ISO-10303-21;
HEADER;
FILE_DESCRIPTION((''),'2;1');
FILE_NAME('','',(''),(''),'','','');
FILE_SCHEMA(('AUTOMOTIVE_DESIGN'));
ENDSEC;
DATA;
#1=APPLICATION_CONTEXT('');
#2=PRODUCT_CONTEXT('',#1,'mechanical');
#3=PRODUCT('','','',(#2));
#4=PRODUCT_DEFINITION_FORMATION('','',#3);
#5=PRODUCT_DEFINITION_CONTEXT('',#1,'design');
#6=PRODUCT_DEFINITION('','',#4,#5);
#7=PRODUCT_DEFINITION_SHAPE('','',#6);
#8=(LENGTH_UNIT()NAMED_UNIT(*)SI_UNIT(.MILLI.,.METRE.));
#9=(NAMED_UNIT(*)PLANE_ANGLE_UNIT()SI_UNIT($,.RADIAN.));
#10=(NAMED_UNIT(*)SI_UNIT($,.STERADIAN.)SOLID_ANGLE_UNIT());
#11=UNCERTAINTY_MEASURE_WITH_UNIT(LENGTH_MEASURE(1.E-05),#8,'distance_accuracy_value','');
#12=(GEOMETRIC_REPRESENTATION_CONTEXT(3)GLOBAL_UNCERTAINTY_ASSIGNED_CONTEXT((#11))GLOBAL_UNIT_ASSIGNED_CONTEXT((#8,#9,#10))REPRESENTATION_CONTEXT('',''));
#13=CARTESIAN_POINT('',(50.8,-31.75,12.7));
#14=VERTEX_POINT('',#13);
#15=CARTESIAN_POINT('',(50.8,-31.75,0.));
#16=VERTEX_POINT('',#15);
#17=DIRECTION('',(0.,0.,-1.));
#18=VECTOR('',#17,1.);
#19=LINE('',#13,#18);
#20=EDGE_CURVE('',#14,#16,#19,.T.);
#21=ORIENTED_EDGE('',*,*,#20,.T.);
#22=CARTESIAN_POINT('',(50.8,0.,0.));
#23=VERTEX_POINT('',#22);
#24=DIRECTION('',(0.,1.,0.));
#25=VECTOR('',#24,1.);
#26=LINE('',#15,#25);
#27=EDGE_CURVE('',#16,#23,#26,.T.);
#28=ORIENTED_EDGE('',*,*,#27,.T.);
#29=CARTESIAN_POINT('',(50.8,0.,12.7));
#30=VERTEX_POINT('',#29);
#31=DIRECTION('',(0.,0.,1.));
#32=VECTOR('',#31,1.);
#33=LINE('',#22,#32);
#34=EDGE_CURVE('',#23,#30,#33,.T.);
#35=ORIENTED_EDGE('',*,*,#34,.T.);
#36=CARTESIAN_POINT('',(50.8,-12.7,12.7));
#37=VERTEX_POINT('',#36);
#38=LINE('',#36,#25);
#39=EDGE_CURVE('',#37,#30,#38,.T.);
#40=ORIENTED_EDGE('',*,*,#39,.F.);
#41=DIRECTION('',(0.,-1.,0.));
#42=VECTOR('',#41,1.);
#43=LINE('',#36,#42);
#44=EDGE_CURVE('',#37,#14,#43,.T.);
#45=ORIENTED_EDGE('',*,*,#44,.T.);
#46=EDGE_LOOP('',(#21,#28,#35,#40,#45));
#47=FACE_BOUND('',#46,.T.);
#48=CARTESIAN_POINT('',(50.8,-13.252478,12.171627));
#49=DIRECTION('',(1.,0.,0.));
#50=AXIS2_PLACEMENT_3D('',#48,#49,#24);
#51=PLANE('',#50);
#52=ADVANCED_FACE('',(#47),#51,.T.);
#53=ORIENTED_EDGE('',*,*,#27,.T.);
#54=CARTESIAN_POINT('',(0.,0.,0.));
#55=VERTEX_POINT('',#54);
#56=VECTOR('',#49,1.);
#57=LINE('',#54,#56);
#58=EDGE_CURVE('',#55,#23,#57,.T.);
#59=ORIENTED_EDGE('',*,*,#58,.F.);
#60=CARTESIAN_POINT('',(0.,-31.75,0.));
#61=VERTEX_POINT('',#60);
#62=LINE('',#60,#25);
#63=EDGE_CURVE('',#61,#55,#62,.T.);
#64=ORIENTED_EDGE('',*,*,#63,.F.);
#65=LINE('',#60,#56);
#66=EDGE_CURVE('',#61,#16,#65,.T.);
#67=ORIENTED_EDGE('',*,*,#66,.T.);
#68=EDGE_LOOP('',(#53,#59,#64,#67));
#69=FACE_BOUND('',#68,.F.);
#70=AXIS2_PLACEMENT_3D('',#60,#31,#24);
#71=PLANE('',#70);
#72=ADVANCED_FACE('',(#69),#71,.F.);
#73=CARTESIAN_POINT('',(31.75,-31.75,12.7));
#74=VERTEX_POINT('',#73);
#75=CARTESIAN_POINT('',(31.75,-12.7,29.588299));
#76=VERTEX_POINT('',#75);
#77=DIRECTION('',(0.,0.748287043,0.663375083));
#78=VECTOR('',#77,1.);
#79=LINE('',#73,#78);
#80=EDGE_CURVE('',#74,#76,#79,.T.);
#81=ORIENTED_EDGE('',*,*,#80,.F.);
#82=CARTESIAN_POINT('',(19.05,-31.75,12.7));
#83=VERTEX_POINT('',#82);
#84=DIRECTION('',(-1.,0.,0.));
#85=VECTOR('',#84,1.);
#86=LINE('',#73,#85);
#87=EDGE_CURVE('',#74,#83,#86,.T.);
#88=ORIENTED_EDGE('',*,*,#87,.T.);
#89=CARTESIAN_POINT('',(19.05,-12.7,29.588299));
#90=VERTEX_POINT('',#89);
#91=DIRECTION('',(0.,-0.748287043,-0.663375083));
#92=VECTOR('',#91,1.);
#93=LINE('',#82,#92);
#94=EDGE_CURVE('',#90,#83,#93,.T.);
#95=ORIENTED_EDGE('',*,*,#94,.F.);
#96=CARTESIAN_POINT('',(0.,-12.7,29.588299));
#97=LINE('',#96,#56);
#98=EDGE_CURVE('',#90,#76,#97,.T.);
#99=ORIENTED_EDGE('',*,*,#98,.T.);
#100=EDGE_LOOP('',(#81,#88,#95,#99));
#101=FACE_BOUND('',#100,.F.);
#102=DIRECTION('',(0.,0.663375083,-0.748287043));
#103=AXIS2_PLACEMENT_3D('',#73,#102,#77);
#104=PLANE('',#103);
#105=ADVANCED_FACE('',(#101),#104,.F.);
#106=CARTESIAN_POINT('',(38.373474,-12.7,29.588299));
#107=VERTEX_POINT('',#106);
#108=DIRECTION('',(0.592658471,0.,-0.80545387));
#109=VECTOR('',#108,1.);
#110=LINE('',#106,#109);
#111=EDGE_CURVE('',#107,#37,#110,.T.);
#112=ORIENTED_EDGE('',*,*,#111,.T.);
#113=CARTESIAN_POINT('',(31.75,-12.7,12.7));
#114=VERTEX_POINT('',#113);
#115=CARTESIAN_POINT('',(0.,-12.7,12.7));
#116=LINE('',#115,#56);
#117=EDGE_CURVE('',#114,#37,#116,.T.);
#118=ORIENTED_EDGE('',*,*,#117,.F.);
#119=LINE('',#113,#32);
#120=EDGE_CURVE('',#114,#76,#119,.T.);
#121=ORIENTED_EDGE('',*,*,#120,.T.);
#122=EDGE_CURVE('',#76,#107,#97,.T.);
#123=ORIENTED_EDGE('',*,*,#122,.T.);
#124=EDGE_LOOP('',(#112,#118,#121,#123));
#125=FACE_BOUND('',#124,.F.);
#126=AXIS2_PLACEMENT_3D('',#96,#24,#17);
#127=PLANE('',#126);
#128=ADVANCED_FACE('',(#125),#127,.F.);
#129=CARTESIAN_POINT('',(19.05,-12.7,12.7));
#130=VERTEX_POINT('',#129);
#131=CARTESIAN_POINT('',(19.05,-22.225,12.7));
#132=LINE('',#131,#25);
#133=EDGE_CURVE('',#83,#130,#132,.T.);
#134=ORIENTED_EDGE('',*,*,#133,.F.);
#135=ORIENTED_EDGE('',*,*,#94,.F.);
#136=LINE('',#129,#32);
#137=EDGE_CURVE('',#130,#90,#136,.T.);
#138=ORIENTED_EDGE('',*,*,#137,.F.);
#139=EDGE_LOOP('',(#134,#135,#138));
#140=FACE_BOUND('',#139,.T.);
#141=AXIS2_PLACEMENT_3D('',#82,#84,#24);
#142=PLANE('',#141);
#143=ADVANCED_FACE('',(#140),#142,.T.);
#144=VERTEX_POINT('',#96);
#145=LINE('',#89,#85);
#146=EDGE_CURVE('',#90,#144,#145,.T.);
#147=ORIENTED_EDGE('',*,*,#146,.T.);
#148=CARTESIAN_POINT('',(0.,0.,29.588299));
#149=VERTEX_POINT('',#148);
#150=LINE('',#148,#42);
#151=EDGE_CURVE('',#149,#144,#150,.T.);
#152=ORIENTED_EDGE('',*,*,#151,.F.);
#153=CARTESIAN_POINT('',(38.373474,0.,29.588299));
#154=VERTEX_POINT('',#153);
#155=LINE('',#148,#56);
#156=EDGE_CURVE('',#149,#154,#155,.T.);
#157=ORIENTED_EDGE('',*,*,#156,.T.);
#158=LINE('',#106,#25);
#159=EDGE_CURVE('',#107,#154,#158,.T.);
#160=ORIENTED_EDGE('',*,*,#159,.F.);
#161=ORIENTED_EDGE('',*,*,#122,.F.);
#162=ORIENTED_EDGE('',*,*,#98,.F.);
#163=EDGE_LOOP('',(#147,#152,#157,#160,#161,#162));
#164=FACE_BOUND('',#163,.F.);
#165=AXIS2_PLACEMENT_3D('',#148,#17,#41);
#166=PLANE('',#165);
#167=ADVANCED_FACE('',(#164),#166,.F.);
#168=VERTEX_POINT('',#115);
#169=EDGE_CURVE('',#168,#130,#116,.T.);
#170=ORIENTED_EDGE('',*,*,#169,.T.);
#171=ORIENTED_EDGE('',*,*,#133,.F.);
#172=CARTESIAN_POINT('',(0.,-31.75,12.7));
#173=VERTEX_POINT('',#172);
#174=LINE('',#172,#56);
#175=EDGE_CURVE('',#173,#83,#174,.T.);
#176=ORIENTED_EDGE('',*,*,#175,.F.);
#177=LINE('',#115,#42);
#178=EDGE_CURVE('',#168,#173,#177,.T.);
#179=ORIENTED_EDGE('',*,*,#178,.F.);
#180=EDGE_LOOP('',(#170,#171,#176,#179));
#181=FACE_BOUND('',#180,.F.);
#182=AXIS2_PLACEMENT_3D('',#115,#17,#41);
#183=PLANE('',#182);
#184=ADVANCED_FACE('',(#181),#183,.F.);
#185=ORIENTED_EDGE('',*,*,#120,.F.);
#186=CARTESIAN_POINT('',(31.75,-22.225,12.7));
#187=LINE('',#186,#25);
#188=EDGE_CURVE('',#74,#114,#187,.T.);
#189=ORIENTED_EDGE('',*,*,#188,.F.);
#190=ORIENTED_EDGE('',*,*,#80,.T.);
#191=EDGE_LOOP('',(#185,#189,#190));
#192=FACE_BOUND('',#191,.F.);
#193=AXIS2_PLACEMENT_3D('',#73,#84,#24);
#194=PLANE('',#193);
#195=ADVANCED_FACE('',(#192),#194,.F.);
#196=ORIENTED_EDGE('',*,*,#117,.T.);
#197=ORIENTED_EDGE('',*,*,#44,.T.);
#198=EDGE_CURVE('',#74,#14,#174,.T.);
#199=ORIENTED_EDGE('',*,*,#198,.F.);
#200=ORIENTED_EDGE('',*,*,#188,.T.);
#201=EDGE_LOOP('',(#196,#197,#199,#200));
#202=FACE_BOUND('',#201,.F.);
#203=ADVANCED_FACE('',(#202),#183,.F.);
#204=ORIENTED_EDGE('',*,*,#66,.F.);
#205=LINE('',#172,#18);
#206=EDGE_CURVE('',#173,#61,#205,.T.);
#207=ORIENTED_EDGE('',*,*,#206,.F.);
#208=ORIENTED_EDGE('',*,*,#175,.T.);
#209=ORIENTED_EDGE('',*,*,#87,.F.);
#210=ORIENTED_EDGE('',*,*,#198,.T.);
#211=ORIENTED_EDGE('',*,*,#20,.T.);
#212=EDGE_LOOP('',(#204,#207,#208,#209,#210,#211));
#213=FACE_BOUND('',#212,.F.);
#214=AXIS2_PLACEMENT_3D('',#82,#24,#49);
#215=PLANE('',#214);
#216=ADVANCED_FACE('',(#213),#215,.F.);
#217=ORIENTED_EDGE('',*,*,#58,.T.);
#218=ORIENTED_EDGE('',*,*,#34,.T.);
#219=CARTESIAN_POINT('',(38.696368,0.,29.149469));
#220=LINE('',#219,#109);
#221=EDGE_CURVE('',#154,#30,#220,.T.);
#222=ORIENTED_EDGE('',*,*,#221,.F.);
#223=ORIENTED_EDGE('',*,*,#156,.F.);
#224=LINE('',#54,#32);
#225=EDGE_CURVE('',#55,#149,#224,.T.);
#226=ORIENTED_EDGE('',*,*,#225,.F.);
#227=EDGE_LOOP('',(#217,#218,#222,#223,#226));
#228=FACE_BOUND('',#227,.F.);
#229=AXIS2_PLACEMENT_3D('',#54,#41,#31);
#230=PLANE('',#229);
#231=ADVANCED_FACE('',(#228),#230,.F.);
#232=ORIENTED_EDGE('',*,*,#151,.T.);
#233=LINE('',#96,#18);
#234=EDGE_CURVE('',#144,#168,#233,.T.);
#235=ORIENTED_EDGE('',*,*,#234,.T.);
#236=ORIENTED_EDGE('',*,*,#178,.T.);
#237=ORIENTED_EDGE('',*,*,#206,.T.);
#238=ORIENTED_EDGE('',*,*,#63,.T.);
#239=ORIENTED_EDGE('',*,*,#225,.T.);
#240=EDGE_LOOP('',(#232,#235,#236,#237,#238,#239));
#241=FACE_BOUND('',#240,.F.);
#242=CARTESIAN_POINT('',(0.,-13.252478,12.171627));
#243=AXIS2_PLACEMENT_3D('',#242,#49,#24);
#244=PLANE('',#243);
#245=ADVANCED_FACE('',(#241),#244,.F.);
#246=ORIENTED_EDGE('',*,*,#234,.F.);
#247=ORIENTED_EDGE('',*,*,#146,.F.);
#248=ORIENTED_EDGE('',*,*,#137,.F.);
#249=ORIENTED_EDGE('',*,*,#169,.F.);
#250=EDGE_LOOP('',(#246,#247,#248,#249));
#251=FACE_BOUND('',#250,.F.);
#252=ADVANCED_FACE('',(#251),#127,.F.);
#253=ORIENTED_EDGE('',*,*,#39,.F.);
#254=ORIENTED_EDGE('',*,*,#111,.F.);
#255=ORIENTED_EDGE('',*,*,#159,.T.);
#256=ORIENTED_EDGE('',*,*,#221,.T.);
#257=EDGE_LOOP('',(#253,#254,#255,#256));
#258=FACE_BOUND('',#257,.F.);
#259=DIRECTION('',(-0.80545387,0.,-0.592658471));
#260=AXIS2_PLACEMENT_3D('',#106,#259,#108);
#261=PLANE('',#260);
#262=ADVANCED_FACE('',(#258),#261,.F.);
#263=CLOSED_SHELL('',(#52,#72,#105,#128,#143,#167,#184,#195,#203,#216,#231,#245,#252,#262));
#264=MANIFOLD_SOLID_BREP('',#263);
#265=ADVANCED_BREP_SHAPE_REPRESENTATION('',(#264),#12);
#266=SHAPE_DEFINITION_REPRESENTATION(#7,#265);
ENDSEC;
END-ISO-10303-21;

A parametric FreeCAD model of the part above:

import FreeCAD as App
import Part
import Sketcher
Q = App.Units.Quantity


def add_polygon(sketch, points):
    """Adds a closed chain of lines whose ends are joined by coincident constraints."""
    first, n = sketch.GeometryCount, len(points)
    for a, b in zip(points, points[1:] + points[:1]):
        sketch.addGeometry(Part.LineSegment(App.Vector(*a, 0), App.Vector(*b, 0)), False)
    for i in range(n):
        sketch.addConstraint(Sketcher.Constraint("Coincident", first + i, 2, first + (i + 1) % n, 1))

doc = App.newDocument("Part")
params = doc.addObject("Spreadsheet::Sheet", "Params")
for row, (alias, value) in enumerate([
    ("sketch1_width", "0.5 in"),
    ("sketch1_width2", "1.25 in"),
    ("pad1_length", "2 in"),
    ("pocket1_length", "1 in"),
    ("sketch3_width", "0.5 in"),
    ("sketch3_height", "0.75 in"),
    ("pad2_length", "0.67 in"),
    ("sketch4_width", "0.75 in"),
    ("sketch4_height", "0.67 in"),
    ("pocket2_length", "1 in"),
], start=1):
    params.set(f"A{row}", alias)
    params.set(f"B{row}", "=" + value)
    params.setAlias(f"B{row}", alias)

body = doc.addObject("PartDesign::Body", "Body")

# Sketch on YZ plane
sketch1 = doc.addObject("Sketcher::SketchObject", "Sketch")
body.addObject(sketch1)
sketch1.AttachmentSupport = (doc.YZ_Plane, [""])
sketch1.MapMode = "FlatFace"
add_polygon(sketch1, [(-31.75, 12.7), (-31.75, 0), (0, 0), (0, 29.588299), (-12.7, 29.588299), (-12.7, 12.7)])  # lines 0-5
sketch1.addConstraint(Sketcher.Constraint("Vertical", 0))
sketch1.addConstraint(Sketcher.Constraint("Horizontal", 1))
sketch1.addConstraint(Sketcher.Constraint("Vertical", 2))
sketch1.addConstraint(Sketcher.Constraint("Horizontal", 3))
sketch1.addConstraint(Sketcher.Constraint("Vertical", 4))
sketch1.addConstraint(Sketcher.Constraint("Horizontal", 5))
sketch1.addConstraint(Sketcher.Constraint("Coincident", 1, 2, -1, 1))
sketch1.addConstraint(Sketcher.Constraint("Equal", 3, 0))
sketch1.addConstraint(Sketcher.Constraint("DistanceX", 3, 2, 3, 1, Q("0.5 in")))
sketch1.addConstraint(Sketcher.Constraint("DistanceX", 1, 1, 1, 2, Q("1.25 in")))
sketch1.addConstraint(Sketcher.Constraint("DistanceY", 2, 1, 2, 2, Q("29.588299 mm")))
sketch1.setExpression("Constraints[14]", "Params.sketch1_width")
sketch1.setExpression("Constraints[15]", "Params.sketch1_width2")
pad1 = doc.addObject("PartDesign::Pad", "Pad")
body.addObject(pad1)
pad1.Profile = sketch1
pad1.setExpression("Length", "Params.pad1_length")

# Sketch on XZ plane
sketch2 = doc.addObject("Sketcher::SketchObject", "Sketch001")
body.addObject(sketch2)
sketch2.AttachmentSupport = (doc.XZ_Plane, [""])
sketch2.MapMode = "FlatFace"
sketch2.AttachmentOffset = App.Placement(App.Vector(0, 0, 0.5 * 25.4), App.Rotation())
add_polygon(sketch2, [(38.373474, 29.588299), (50.8, 12.7), (50.8, 29.588299)])  # lines 0-2
sketch2.addConstraint(Sketcher.Constraint("Vertical", 1))
sketch2.addConstraint(Sketcher.Constraint("Horizontal", 2))
sketch2.addConstraint(Sketcher.Constraint("DistanceX", -1, 1, 0, 2, Q("2 in")))
sketch2.addConstraint(Sketcher.Constraint("DistanceY", -1, 1, 0, 2, Q("0.5 in")))
sketch2.addConstraint(Sketcher.Constraint("DistanceY", 1, 1, 1, 2, Q("16.888299 mm")))
sketch2.addConstraint(Sketcher.Constraint("Distance", 0, Q("20.967432 mm")))
pocket1 = doc.addObject("PartDesign::Pocket", "Pocket")
body.addObject(pocket1)
pocket1.Profile = sketch2
pocket1.setExpression("Length", "Params.pocket1_length")

# Sketch on XY plane
sketch3 = doc.addObject("Sketcher::SketchObject", "Sketch002")
body.addObject(sketch3)
sketch3.AttachmentSupport = (doc.XY_Plane, [""])
sketch3.MapMode = "FlatFace"
sketch3.AttachmentOffset = App.Placement(App.Vector(0, 0, 0.5 * 25.4), App.Rotation())
add_polygon(sketch3, [(19.05, -12.7), (19.05, -31.75), (31.75, -31.75), (31.75, -12.7)])  # lines 0-3
sketch3.addConstraint(Sketcher.Constraint("Vertical", 0))
sketch3.addConstraint(Sketcher.Constraint("Horizontal", 1))
sketch3.addConstraint(Sketcher.Constraint("Vertical", 2))
sketch3.addConstraint(Sketcher.Constraint("Horizontal", 3))
sketch3.addConstraint(Sketcher.Constraint("DistanceX", 1, 1, 1, 2, Q("0.5 in")))
sketch3.addConstraint(Sketcher.Constraint("DistanceY", 0, 2, 0, 1, Q("0.75 in")))
sketch3.addConstraint(Sketcher.Constraint("DistanceY", 2, 2, -1, 1, Q("0.5 in")))
sketch3.addConstraint(Sketcher.Constraint("DistanceX", -1, 1, 0, 2, Q("0.75 in")))
sketch3.setExpression("Constraints[8]", "Params.sketch3_width")
sketch3.setExpression("Constraints[9]", "Params.sketch3_height")
pad2 = doc.addObject("PartDesign::Pad", "Pad001")
body.addObject(pad2)
pad2.Profile = sketch3
pad2.setExpression("Length", "Params.pad2_length")

# Sketch on YZ plane
sketch4 = doc.addObject("Sketcher::SketchObject", "Sketch003")
body.addObject(sketch4)
sketch4.AttachmentSupport = (doc.YZ_Plane, [""])
sketch4.MapMode = "FlatFace"
sketch4.AttachmentOffset = App.Placement(App.Vector(0, 0, 1.25 * 25.4), App.Rotation())
add_polygon(sketch4, [(-31.75, 29.718), (-31.75, 12.7), (-12.7, 29.588299), (-12.7, 29.718)])  # lines 0-3
sketch4.addConstraint(Sketcher.Constraint("Vertical", 0))
sketch4.addConstraint(Sketcher.Constraint("Vertical", 2))
sketch4.addConstraint(Sketcher.Constraint("Horizontal", 3))
sketch4.addConstraint(Sketcher.Constraint("DistanceX", 3, 2, 3, 1, Q("0.75 in")))
sketch4.addConstraint(Sketcher.Constraint("DistanceY", 0, 2, 0, 1, Q("0.67 in")))
sketch4.addConstraint(Sketcher.Constraint("DistanceY", -1, 1, 0, 2, Q("0.5 in")))
sketch4.addConstraint(Sketcher.Constraint("DistanceX", 1, 2, -1, 1, Q("0.5 in")))
sketch4.addConstraint(Sketcher.Constraint("DistanceY", 2, 1, 2, 2, Q("0.129701 mm")))
sketch4.setExpression("Constraints[7]", "Params.sketch4_width")
sketch4.setExpression("Constraints[8]", "Params.sketch4_height")
pocket2 = doc.addObject("PartDesign::Pocket", "Pocket001")
body.addObject(pocket2)
pocket2.Profile = sketch4
pocket2.setExpression("Length", "Params.pocket2_length")

doc.recompute()
